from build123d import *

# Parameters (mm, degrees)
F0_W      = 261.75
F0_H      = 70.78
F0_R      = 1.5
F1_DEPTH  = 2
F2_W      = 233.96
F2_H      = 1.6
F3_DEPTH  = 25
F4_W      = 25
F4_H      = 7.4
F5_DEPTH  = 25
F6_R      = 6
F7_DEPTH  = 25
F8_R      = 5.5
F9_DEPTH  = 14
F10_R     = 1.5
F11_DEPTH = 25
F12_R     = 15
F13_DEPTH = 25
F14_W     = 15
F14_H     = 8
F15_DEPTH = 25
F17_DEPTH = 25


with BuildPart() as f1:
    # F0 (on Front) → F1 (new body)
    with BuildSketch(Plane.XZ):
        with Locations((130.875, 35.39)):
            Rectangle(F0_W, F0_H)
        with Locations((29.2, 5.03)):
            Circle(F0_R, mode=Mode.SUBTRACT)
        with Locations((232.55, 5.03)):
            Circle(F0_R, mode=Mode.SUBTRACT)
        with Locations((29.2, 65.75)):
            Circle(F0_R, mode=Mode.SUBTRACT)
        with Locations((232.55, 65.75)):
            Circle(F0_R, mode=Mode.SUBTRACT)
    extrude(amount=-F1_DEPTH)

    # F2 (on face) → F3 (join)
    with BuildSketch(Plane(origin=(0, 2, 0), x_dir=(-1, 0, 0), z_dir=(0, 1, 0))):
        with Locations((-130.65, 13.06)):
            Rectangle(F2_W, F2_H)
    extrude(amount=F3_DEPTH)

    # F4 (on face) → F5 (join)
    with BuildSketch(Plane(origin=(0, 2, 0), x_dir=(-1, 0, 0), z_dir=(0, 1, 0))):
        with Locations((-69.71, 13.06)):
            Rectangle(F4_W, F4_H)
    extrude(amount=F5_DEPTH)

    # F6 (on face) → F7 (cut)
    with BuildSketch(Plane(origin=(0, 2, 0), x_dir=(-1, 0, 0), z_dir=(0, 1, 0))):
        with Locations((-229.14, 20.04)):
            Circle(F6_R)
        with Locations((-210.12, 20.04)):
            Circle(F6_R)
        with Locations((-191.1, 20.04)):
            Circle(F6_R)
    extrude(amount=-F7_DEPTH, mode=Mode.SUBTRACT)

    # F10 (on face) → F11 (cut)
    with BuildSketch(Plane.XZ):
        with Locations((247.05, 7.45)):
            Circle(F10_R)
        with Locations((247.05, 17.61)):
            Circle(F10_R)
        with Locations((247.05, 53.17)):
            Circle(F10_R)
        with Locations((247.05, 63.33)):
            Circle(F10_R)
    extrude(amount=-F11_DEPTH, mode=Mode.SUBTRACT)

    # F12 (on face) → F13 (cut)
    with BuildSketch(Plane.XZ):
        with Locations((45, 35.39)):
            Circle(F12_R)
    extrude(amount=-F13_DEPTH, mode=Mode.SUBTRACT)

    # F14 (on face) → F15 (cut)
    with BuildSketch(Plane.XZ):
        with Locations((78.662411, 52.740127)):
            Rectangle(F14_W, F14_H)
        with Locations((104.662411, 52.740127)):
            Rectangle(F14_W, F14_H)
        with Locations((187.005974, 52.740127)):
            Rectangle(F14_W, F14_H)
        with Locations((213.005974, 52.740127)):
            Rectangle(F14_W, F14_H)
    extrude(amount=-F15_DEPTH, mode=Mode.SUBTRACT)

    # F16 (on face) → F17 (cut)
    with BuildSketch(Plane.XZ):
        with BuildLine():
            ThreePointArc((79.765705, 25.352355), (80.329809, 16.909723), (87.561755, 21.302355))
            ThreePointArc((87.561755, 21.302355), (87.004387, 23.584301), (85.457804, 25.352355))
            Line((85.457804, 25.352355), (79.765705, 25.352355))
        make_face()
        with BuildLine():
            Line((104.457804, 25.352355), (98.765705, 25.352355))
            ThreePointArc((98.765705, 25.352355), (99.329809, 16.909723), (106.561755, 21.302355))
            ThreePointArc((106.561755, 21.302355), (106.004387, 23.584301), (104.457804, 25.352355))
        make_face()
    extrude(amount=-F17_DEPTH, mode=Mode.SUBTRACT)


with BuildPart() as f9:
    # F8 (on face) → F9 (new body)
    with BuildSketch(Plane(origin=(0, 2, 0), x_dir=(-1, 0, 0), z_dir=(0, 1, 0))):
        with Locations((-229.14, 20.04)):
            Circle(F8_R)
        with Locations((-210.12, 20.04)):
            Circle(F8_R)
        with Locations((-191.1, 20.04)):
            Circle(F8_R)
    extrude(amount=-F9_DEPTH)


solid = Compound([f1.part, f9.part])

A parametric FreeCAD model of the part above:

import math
import FreeCAD as App
import Part
import Sketcher

V = App.Vector


def add_polygon(sketch, points):
    """Adds a closed chain of lines whose ends are joined by coincident constraints."""
    first, n = sketch.GeometryCount, len(points)
    for a, b in zip(points, points[1:] + points[:1]):
        sketch.addGeometry(Part.LineSegment(App.Vector(*a, 0), App.Vector(*b, 0)), False)
    for i in range(n):
        sketch.addConstraint(Sketcher.Constraint("Coincident", first + i, 2, first + (i + 1) % n, 1))

doc = App.newDocument("Part")
params = doc.addObject("Spreadsheet::Sheet", "Params")
for row, (alias, value) in enumerate([
    ("sketch1_diameter", "3 mm"),
    ("sketch1_width", "261.75 mm"),
    ("sketch1_height", "70.78 mm"),
    ("pad1_length", "2 mm"),
    ("sketch2_height", "1.6 mm"),
    ("sketch2_width", "233.96 mm"),
    ("pad2_length", "25 mm"),
    ("sketch3_width", "25 mm"),
    ("sketch3_height", "7.4 mm"),
    ("pad3_length", "25 mm"),
    ("sketch4_diameter", "12 mm"),
    ("pocket1_length", "25 mm"),
    ("sketch5_diameter", "3 mm"),
    ("pocket2_length", "25 mm"),
    ("sketch6_diameter", "30 mm"),
    ("pocket3_length", "25 mm"),
    ("sketch7_width", "15 mm"),
    ("sketch7_height", "8 mm"),
    ("pocket4_length", "25 mm"),
    ("sketch8_radius", "4.95 mm"),
    ("pocket5_length", "25 mm"),
    ("sketch9_diameter", "11 mm"),
    ("pad4_length", "14 mm"),
], start=1):
    params.set(f"A{row}", alias)
    params.set(f"B{row}", "=" + value)
    params.setAlias(f"B{row}", alias)

body = doc.addObject("PartDesign::Body", "Body")

# Sketch on XZ plane
sketch1 = doc.addObject("Sketcher::SketchObject", "Sketch")
body.addObject(sketch1)
sketch1.AttachmentSupport = (doc.XZ_Plane, [""])
sketch1.MapMode = "FlatFace"
add_polygon(sketch1, [(0, 70.78), (0, 0), (261.75, 0), (261.75, 70.78)])  # lines 0-3
sketch1.addGeometry(Part.Circle(V(29.2, 5.03, 0), V(0, 0, 1), 1.5), False)  # 4
sketch1.addGeometry(Part.Circle(V(232.55, 5.03, 0), V(0, 0, 1), 1.5), False)  # 5
sketch1.addGeometry(Part.Circle(V(29.2, 65.75, 0), V(0, 0, 1), 1.5), False)  # 6
sketch1.addGeometry(Part.Circle(V(232.55, 65.75, 0), V(0, 0, 1), 1.5), False)  # 7
sketch1.addConstraint([
    Sketcher.Constraint("Vertical", 0),
    Sketcher.Constraint("Horizontal", 1),
    Sketcher.Constraint("Vertical", 2),
    Sketcher.Constraint("Horizontal", 3),
    Sketcher.Constraint("Coincident", 0, 2, -1, 1),
    Sketcher.Constraint("Equal", 4, 5),
    Sketcher.Constraint("Equal", 5, 6),
    Sketcher.Constraint("Equal", 6, 7),
    Sketcher.Constraint("Horizontal", 4, 3, 5, 3),
    Sketcher.Constraint("Horizontal", 6, 3, 7, 3),
    Sketcher.Constraint("Vertical", 4, 3, 6, 3),
    Sketcher.Constraint("Vertical", 5, 3, 7, 3),
    Sketcher.Constraint("Diameter", 4, 3.0),
    Sketcher.Constraint("DistanceX", 1, 1, 1, 2, 261.75),
    Sketcher.Constraint("DistanceY", 0, 2, 0, 1, 70.78),
    Sketcher.Constraint("DistanceX", -1, 1, 4, 3, 29.2),
    Sketcher.Constraint("DistanceX", 5, 3, 1, 2, 29.2),
    Sketcher.Constraint("DistanceY", -1, 1, 4, 3, 5.03),
    Sketcher.Constraint("DistanceY", -1, 1, 6, 3, 65.75),
])
sketch1.setExpression("Constraints[16]", "Params.sketch1_diameter")
sketch1.setExpression("Constraints[17]", "Params.sketch1_width")
sketch1.setExpression("Constraints[18]", "Params.sketch1_height")
pad1 = doc.addObject("PartDesign::Pad", "Pad")
body.addObject(pad1)
pad1.Profile = sketch1
pad1.setExpression("Length", "Params.pad1_length")
pad1.Reversed = True

# Sketch on XZ plane
sketch2 = doc.addObject("Sketcher::SketchObject", "Sketch001")
body.addObject(sketch2)
sketch2.AttachmentSupport = (doc.XZ_Plane, [""])
sketch2.MapMode = "FlatFace"
sketch2.AttachmentOffset = App.Placement(V(0, 0, -2), App.Rotation())
add_polygon(sketch2, [(247.63, 13.86), (247.63, 12.26), (13.67, 12.26), (13.67, 13.86)])  # lines 0-3
sketch2.addConstraint([
    Sketcher.Constraint("Vertical", 0),
    Sketcher.Constraint("Horizontal", 1),
    Sketcher.Constraint("Vertical", 2),
    Sketcher.Constraint("Horizontal", 3),
    Sketcher.Constraint("DistanceY", 0, 2, 0, 1, 1.6),
    Sketcher.Constraint("DistanceX", 1, 2, 1, 1, 233.96),
    Sketcher.Constraint("DistanceX", -1, 1, 0, 2, 247.63),
    Sketcher.Constraint("DistanceY", -1, 1, 0, 2, 12.26),
])
sketch2.setExpression("Constraints[8]", "Params.sketch2_height")
sketch2.setExpression("Constraints[9]", "Params.sketch2_width")
pad2 = doc.addObject("PartDesign::Pad", "Pad001")
body.addObject(pad2)
pad2.Profile = sketch2
pad2.setExpression("Length", "Params.pad2_length")
pad2.Reversed = True

# Sketch on XZ plane
sketch3 = doc.addObject("Sketcher::SketchObject", "Sketch002")
body.addObject(sketch3)
sketch3.AttachmentSupport = (doc.XZ_Plane, [""])
sketch3.MapMode = "FlatFace"
sketch3.AttachmentOffset = App.Placement(V(0, 0, -2), App.Rotation())
add_polygon(sketch3, [(82.21, 16.76), (82.21, 9.36), (57.21, 9.36), (57.21, 16.76)])  # lines 0-3
sketch3.addConstraint([
    Sketcher.Constraint("Vertical", 0),
    Sketcher.Constraint("Horizontal", 1),
    Sketcher.Constraint("Vertical", 2),
    Sketcher.Constraint("Horizontal", 3),
    Sketcher.Constraint("DistanceX", 1, 2, 1, 1, 25.0),
    Sketcher.Constraint("DistanceY", 0, 2, 0, 1, 7.4),
    Sketcher.Constraint("DistanceX", -1, 1, 0, 2, 82.21),
    Sketcher.Constraint("DistanceY", -1, 1, 0, 2, 9.36),
])
sketch3.setExpression("Constraints[8]", "Params.sketch3_width")
sketch3.setExpression("Constraints[9]", "Params.sketch3_height")
pad3 = doc.addObject("PartDesign::Pad", "Pad002")
body.addObject(pad3)
pad3.Profile = sketch3
pad3.setExpression("Length", "Params.pad3_length")
pad3.Reversed = True

# Sketch on XZ plane
sketch4 = doc.addObject("Sketcher::SketchObject", "Sketch003")
body.addObject(sketch4)
sketch4.AttachmentSupport = (doc.XZ_Plane, [""])
sketch4.MapMode = "FlatFace"
sketch4.AttachmentOffset = App.Placement(V(0, 0, -2), App.Rotation())
sketch4.addGeometry([
    Part.Circle(V(229.14, 20.04, 0), V(0, 0, 1), 6),
    Part.Circle(V(210.12, 20.04, 0), V(0, 0, 1), 6),
    Part.Circle(V(191.1, 20.04, 0), V(0, 0, 1), 6),
], False)
sketch4.addConstraint([
    Sketcher.Constraint("Equal", 0, 1),
    Sketcher.Constraint("Equal", 1, 2),
    Sketcher.Constraint("Horizontal", 0, 3, 1, 3),
    Sketcher.Constraint("Horizontal", 1, 3, 2, 3),
    Sketcher.Constraint("Diameter", 0, 12.0),
    Sketcher.Constraint("DistanceX", -1, 1, 2, 3, 191.1),
    Sketcher.Constraint("DistanceX", -1, 1, 0, 3, 229.14),
    Sketcher.Constraint("DistanceY", -1, 1, 0, 3, 20.04),
    Sketcher.Constraint("DistanceX", -1, 1, 1, 3, 210.12),
])
sketch4.setExpression("Constraints[4]", "Params.sketch4_diameter")
pocket1 = doc.addObject("PartDesign::Pocket", "Pocket")
body.addObject(pocket1)
pocket1.Profile = sketch4
pocket1.setExpression("Length", "Params.pocket1_length")
pocket1.Reversed = True

# Sketch on XZ plane
sketch5 = doc.addObject("Sketcher::SketchObject", "Sketch004")
body.addObject(sketch5)
sketch5.AttachmentSupport = (doc.XZ_Plane, [""])
sketch5.MapMode = "FlatFace"
sketch5.addGeometry([
    Part.Circle(V(247.05, 7.45, 0), V(0, 0, 1), 1.5),
    Part.Circle(V(247.05, 17.61, 0), V(0, 0, 1), 1.5),
    Part.Circle(V(247.05, 53.17, 0), V(0, 0, 1), 1.5),
    Part.Circle(V(247.05, 63.33, 0), V(0, 0, 1), 1.5),
], False)
sketch5.addConstraint([
    Sketcher.Constraint("Equal", 0, 1),
    Sketcher.Constraint("Equal", 1, 2),
    Sketcher.Constraint("Equal", 2, 3),
    Sketcher.Constraint("Vertical", 0, 3, 1, 3),
    Sketcher.Constraint("Vertical", 1, 3, 2, 3),
    Sketcher.Constraint("Vertical", 2, 3, 3, 3),
    Sketcher.Constraint("Diameter", 0, 3.0),
    Sketcher.Constraint("DistanceX", -1, 1, 0, 3, 247.05),
    Sketcher.Constraint("DistanceY", -1, 1, 0, 3, 7.45),
    Sketcher.Constraint("DistanceY", -1, 1, 1, 3, 17.61),
    Sketcher.Constraint("DistanceY", -1, 1, 2, 3, 53.17),
    Sketcher.Constraint("DistanceY", -1, 1, 3, 3, 63.33),
])
sketch5.setExpression("Constraints[6]", "Params.sketch5_diameter")
pocket2 = doc.addObject("PartDesign::Pocket", "Pocket001")
body.addObject(pocket2)
pocket2.Profile = sketch5
pocket2.setExpression("Length", "Params.pocket2_length")

# Sketch on XZ plane
sketch6 = doc.addObject("Sketcher::SketchObject", "Sketch005")
body.addObject(sketch6)
sketch6.AttachmentSupport = (doc.XZ_Plane, [""])
sketch6.MapMode = "FlatFace"
sketch6.addGeometry(Part.Circle(V(45, 35.39, 0), V(0, 0, 1), 15), False)
sketch6.addConstraint([
    Sketcher.Constraint("Diameter", 0, 30.0),
    Sketcher.Constraint("DistanceX", -1, 1, 0, 3, 45.0),
    Sketcher.Constraint("DistanceY", -1, 1, 0, 3, 35.39),
])
sketch6.setExpression("Constraints[0]", "Params.sketch6_diameter")
pocket3 = doc.addObject("PartDesign::Pocket", "Pocket002")
body.addObject(pocket3)
pocket3.Profile = sketch6
pocket3.setExpression("Length", "Params.pocket3_length")

# Sketch on XZ plane
sketch7 = doc.addObject("Sketcher::SketchObject", "Sketch006")
body.addObject(sketch7)
sketch7.AttachmentSupport = (doc.XZ_Plane, [""])
sketch7.MapMode = "FlatFace"
add_polygon(sketch7, [(71.162411, 56.740127), (71.162411, 48.740127), (86.162411, 48.740127), (86.162411, 56.740127)])  # lines 0-3
add_polygon(sketch7, [(97.162411, 56.740127), (97.162411, 48.740127), (112.162411, 48.740127), (112.162411, 56.740127)])  # lines 4-7
add_polygon(sketch7, [(179.505974, 56.740127), (179.505974, 48.740127), (194.505974, 48.740127), (194.505974, 56.740127)])  # lines 8-11
add_polygon(sketch7, [(205.505974, 56.740127), (205.505974, 48.740127), (220.505974, 48.740127), (220.505974, 56.740127)])  # lines 12-15
sketch7.addConstraint([
    Sketcher.Constraint("Vertical", 0),
    Sketcher.Constraint("Horizontal", 1),
    Sketcher.Constraint("Vertical", 2),
    Sketcher.Constraint("Horizontal", 3),
    Sketcher.Constraint("Vertical", 4),
    Sketcher.Constraint("Horizontal", 5),
    Sketcher.Constraint("Vertical", 6),
    Sketcher.Constraint("Horizontal", 7),
    Sketcher.Constraint("Vertical", 8),
    Sketcher.Constraint("Horizontal", 9),
    Sketcher.Constraint("Vertical", 10),
    Sketcher.Constraint("Horizontal", 11),
    Sketcher.Constraint("Vertical", 12),
    Sketcher.Constraint("Horizontal", 13),
    Sketcher.Constraint("Vertical", 14),
    Sketcher.Constraint("Horizontal", 15),
    Sketcher.Constraint("Horizontal", 1, 2, 4, 2),
    Sketcher.Constraint("Horizontal", 3, 2, 6, 2),
    Sketcher.Constraint("Horizontal", 5, 2, 8, 2),
    Sketcher.Constraint("Horizontal", 7, 2, 10, 2),
    Sketcher.Constraint("Horizontal", 9, 2, 12, 2),
    Sketcher.Constraint("Horizontal", 11, 2, 14, 2),
    Sketcher.Constraint("Equal", 3, 5),
    Sketcher.Constraint("Equal", 7, 9),
    Sketcher.Constraint("Equal", 11, 13),
    Sketcher.Constraint("DistanceX", 1, 1, 1, 2, 15.0),
    Sketcher.Constraint("DistanceY", 0, 2, 0, 1, 8.0),
    Sketcher.Constraint("DistanceX", 1, 2, 4, 2, 11.0),
    Sketcher.Constraint("DistanceX", 9, 2, 12, 2, 11.0),
    Sketcher.Constraint("DistanceX", -1, 1, 0, 2, 71.162411),
    Sketcher.Constraint("DistanceY", -1, 1, 0, 2, 48.740127),
    Sketcher.Constraint("DistanceX", -1, 1, 8, 2, 179.505974),
])
sketch7.setExpression("Constraints[41]", "Params.sketch7_width")
sketch7.setExpression("Constraints[42]", "Params.sketch7_height")
pocket4 = doc.addObject("PartDesign::Pocket", "Pocket003")
body.addObject(pocket4)
pocket4.Profile = sketch7
pocket4.setExpression("Length", "Params.pocket4_length")

# Sketch on XZ plane
sketch8 = doc.addObject("Sketcher::SketchObject", "Sketch007")
body.addObject(sketch8)
sketch8.AttachmentSupport = (doc.XZ_Plane, [""])
sketch8.MapMode = "FlatFace"
sketch8.addGeometry([
    Part.ArcOfCircle(Part.Circle(V(82.611755, 21.302355, 0), V(0, 0, 1), 4.95), math.radians(125.096807), math.radians(359.999995)),  # 0
    Part.ArcOfCircle(Part.Circle(V(82.611752, 21.302353, 0), V(0, 0, 1), 4.950003), math.radians(0.000025), math.radians(54.903194)),  # 1
    Part.LineSegment(V(85.457804, 25.352355, 0), V(79.765705, 25.352355, 0)),  # 2
    Part.LineSegment(V(104.457804, 25.352355, 0), V(98.765705, 25.352355, 0)),  # 3
    Part.ArcOfCircle(Part.Circle(V(101.611755, 21.302355, 0), V(0, 0, 1), 4.95), math.radians(125.096807), math.radians(359.999995)),  # 4
    Part.ArcOfCircle(Part.Circle(V(101.611752, 21.302353, 0), V(0, 0, 1), 4.950003), math.radians(0.000025), math.radians(54.903194)),  # 5
], False)
sketch8.addConstraint([
    Sketcher.Constraint("Tangent", 0, 2, 1, 1),
    Sketcher.Constraint("Coincident", 1, 2, 2, 1),
    Sketcher.Constraint("Coincident", 2, 2, 0, 1),
    Sketcher.Constraint("Coincident", 3, 2, 4, 1),
    Sketcher.Constraint("Tangent", 4, 2, 5, 1),
    Sketcher.Constraint("Coincident", 5, 2, 3, 1),
    Sketcher.Constraint("Horizontal", 2),
    Sketcher.Constraint("Horizontal", 3),
    Sketcher.Constraint("Equal", 0, 4),
    Sketcher.Constraint("Equal", 1, 5),
    Sketcher.Constraint("Horizontal", 0, 3, 4, 3),
    Sketcher.Constraint("Horizontal", 4, 3, 0, 2),
    Sketcher.Constraint("Horizontal", 2, 2, 3, 2),
    Sketcher.Constraint("Horizontal", 0, 2, 4, 2),
    Sketcher.Constraint("Radius", 0, 4.95),
    Sketcher.Constraint("DistanceX", 0, 3, 4, 3, 19.0),
    Sketcher.Constraint("DistanceY", 0, 2, 1, 2, 4.05),
    Sketcher.Constraint("DistanceX", 2, 2, 2, 1, 5.692099),
    Sketcher.Constraint("DistanceX", -1, 1, 0, 3, 82.611755),
    Sketcher.Constraint("DistanceY", -1, 1, 0, 3, 21.302355),
])
sketch8.setExpression("Constraints[14]", "Params.sketch8_radius")
pocket5 = doc.addObject("PartDesign::Pocket", "Pocket004")
body.addObject(pocket5)
pocket5.Profile = sketch8
pocket5.setExpression("Length", "Params.pocket5_length")
body2 = doc.addObject("PartDesign::Body", "Body001")
body2.AllowCompound = True

# Sketch on XZ plane
sketch9 = doc.addObject("Sketcher::SketchObject", "Sketch008")
body2.addObject(sketch9)
sketch9.AttachmentSupport = (doc.getObject("XZ_Plane001"), [""])
sketch9.MapMode = "FlatFace"
sketch9.AttachmentOffset = App.Placement(V(0, 0, -2), App.Rotation())
sketch9.addGeometry([
    Part.Circle(V(229.14, 20.04, 0), V(0, 0, 1), 5.5),
    Part.Circle(V(210.12, 20.04, 0), V(0, 0, 1), 5.5),
    Part.Circle(V(191.1, 20.04, 0), V(0, 0, 1), 5.5),
], False)
sketch9.addConstraint([
    Sketcher.Constraint("Equal", 0, 1),
    Sketcher.Constraint("Equal", 1, 2),
    Sketcher.Constraint("Horizontal", 0, 3, 1, 3),
    Sketcher.Constraint("Horizontal", 1, 3, 2, 3),
    Sketcher.Constraint("Diameter", 0, 11.0),
    Sketcher.Constraint("DistanceX", -1, 1, 2, 3, 191.1),
    Sketcher.Constraint("DistanceX", -1, 1, 0, 3, 229.14),
    Sketcher.Constraint("DistanceY", -1, 1, 0, 3, 20.04),
    Sketcher.Constraint("DistanceX", -1, 1, 1, 3, 210.12),
])
sketch9.setExpression("Constraints[4]", "Params.sketch9_diameter")
pad4 = doc.addObject("PartDesign::Pad", "Pad003")
body2.addObject(pad4)
pad4.Profile = sketch9
pad4.setExpression("Length", "Params.pad4_length")

doc.recompute()
